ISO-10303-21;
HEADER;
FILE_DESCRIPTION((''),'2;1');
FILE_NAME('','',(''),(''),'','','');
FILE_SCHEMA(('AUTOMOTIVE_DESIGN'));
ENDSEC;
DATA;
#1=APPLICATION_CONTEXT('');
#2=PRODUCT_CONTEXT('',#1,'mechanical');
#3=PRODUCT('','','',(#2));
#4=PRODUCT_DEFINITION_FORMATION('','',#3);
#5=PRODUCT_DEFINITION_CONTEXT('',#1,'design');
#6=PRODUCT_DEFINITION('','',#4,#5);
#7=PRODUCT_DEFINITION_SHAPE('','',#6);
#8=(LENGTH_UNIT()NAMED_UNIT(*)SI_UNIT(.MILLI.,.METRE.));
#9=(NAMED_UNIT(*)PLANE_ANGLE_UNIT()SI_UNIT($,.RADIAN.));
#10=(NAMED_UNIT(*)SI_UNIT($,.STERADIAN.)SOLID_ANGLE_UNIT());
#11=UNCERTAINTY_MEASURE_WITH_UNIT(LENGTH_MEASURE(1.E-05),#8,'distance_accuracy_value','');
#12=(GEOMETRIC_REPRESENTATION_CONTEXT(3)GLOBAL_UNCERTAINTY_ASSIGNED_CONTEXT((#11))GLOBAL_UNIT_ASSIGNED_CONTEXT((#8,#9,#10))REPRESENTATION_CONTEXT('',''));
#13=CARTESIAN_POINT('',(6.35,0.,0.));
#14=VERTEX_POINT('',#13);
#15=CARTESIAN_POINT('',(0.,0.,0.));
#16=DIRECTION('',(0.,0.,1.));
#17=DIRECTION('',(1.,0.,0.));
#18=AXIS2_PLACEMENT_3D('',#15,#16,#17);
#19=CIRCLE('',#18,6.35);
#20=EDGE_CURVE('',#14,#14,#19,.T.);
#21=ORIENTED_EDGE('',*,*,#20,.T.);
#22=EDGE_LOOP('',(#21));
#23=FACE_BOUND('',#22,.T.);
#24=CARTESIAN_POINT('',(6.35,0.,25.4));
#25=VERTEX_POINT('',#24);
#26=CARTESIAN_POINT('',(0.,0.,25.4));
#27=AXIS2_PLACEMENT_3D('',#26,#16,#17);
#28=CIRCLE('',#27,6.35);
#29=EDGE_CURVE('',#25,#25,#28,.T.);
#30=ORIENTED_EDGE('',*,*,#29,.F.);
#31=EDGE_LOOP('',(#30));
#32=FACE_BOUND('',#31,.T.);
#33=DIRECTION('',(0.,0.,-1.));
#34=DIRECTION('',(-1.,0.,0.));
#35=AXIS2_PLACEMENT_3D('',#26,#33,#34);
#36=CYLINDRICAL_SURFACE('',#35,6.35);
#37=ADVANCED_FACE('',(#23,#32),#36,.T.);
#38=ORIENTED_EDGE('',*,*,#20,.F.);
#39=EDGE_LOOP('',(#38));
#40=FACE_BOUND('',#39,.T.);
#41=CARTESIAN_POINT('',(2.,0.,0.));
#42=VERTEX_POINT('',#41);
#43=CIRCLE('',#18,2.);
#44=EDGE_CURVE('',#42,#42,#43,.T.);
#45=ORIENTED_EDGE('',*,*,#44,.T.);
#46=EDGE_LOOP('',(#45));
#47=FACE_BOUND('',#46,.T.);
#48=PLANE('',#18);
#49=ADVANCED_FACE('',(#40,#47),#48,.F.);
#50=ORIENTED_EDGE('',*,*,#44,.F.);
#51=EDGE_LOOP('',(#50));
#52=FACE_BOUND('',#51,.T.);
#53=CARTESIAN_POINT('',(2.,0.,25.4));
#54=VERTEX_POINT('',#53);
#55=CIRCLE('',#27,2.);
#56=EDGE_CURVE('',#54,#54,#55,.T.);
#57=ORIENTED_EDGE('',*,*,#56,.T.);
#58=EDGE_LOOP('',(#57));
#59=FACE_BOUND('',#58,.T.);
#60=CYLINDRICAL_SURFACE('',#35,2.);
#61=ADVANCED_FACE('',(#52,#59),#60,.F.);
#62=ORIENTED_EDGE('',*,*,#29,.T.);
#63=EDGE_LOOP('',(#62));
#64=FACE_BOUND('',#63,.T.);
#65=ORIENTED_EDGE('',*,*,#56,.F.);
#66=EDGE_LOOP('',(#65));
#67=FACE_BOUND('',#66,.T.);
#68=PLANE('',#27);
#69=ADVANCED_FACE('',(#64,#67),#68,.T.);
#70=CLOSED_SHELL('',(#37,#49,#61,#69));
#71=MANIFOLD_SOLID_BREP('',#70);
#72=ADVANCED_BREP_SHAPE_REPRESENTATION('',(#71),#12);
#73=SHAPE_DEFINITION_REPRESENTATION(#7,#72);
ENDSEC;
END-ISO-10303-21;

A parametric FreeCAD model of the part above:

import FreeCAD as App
import Part
import Sketcher

V = App.Vector
Q = App.Units.Quantity

doc = App.newDocument("Part")
body = doc.addObject("PartDesign::Body", "Body")

# Sketch on XY plane
sketch1 = body.newObject("Sketcher::SketchObject", "Sketch")
sketch1.AttachmentSupport = (doc.getObject("XY_Plane"), [""])
sketch1.MapMode = "FlatFace"
sketch1.addGeometry([
    Part.Circle(V(0, 0, 0), V(0, 0, 1), 6.3),
    Part.Circle(V(0, 0, 0), V(0, 0, 1), 2),
], False)
sketch1.addConstraint([
    Sketcher.Constraint("Coincident", 0, 3, -1, 1),
    Sketcher.Constraint("Coincident", 1, 3, -1, 1),
    Sketcher.Constraint("Diameter", 0, Q("0.5 in")),
    Sketcher.Constraint("Diameter", 1, Q("4 mm")),
])
pad1 = body.newObject("PartDesign::Pad", "Pad")
pad1.Profile = sketch1
pad1.Length = Q("1 in")

doc.recompute()
